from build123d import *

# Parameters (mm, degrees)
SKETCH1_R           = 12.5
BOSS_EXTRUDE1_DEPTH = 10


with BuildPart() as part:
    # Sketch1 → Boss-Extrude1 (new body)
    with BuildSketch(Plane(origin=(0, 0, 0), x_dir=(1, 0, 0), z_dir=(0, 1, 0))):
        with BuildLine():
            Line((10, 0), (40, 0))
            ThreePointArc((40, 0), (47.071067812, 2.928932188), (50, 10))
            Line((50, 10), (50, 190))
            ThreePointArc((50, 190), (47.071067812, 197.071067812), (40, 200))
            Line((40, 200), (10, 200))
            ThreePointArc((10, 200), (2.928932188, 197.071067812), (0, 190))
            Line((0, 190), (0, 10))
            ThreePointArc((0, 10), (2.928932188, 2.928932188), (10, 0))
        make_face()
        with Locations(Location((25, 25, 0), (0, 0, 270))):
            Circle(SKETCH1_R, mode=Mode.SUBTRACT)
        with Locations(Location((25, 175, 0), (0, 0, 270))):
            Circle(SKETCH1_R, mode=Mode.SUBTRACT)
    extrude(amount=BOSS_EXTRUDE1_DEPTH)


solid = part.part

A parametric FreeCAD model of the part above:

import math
import FreeCAD as App
import Part
import Sketcher

doc = App.newDocument("Part")
body = doc.addObject("PartDesign::Body", "Body")

# Sketch on XZ plane
sketch1 = body.newObject("Sketcher::SketchObject", "Sketch")
sketch1.AttachmentSupport = (doc.getObject("XZ_Plane"), [""])
sketch1.MapMode = "FlatFace"
sketch1.addGeometry(Part.LineSegment(App.Vector(10, 0, 0), App.Vector(40, 0, 0)), False)
sketch1.addGeometry(Part.ArcOfCircle(Part.Circle(App.Vector(40, -10, 0), App.Vector(0, 0, 1), 10), math.radians(0), math.radians(90)), False)
sketch1.addGeometry(Part.LineSegment(App.Vector(50, -10, 0), App.Vector(50, -190, 0)), False)
sketch1.addGeometry(Part.ArcOfCircle(Part.Circle(App.Vector(40, -190, 0), App.Vector(0, 0, 1), 10), math.radians(-90), math.radians(0)), False)
sketch1.addGeometry(Part.LineSegment(App.Vector(40, -200, 0), App.Vector(10, -200, 0)), False)
sketch1.addGeometry(Part.ArcOfCircle(Part.Circle(App.Vector(10, -190, 0), App.Vector(0, 0, 1), 10), math.radians(180), math.radians(270)), False)
sketch1.addGeometry(Part.LineSegment(App.Vector(0, -190, 0), App.Vector(0, -10, 0)), False)
sketch1.addGeometry(Part.ArcOfCircle(Part.Circle(App.Vector(10, -10, 0), App.Vector(0, 0, 1), 10), math.radians(90), math.radians(180)), False)
sketch1.addGeometry(Part.Circle(App.Vector(25, -25, 0), App.Vector(0, 0, 1), 12), False)
sketch1.addGeometry(Part.Circle(App.Vector(25, -175, 0), App.Vector(0, 0, 1), 12), False)
sketch1.addConstraint(Sketcher.Constraint("Tangent", 0, 2, 1, 2))
sketch1.addConstraint(Sketcher.Constraint("Tangent", 1, 1, 2, 1))
sketch1.addConstraint(Sketcher.Constraint("Tangent", 2, 2, 3, 2))
sketch1.addConstraint(Sketcher.Constraint("Tangent", 3, 1, 4, 1))
sketch1.addConstraint(Sketcher.Constraint("Tangent", 4, 2, 5, 2))
sketch1.addConstraint(Sketcher.Constraint("Tangent", 5, 1, 6, 1))
sketch1.addConstraint(Sketcher.Constraint("Tangent", 6, 2, 7, 2))
sketch1.addConstraint(Sketcher.Constraint("Tangent", 7, 1, 0, 1))
sketch1.addConstraint(Sketcher.Constraint("Horizontal", 0))
sketch1.addConstraint(Sketcher.Constraint("Vertical", 2))
sketch1.addConstraint(Sketcher.Constraint("Horizontal", 4))
sketch1.addConstraint(Sketcher.Constraint("Vertical", 6))
sketch1.addConstraint(Sketcher.Constraint("Equal", 1, 3))
sketch1.addConstraint(Sketcher.Constraint("Equal", 3, 5))
sketch1.addConstraint(Sketcher.Constraint("Equal", 5, 7))
sketch1.addConstraint(Sketcher.Constraint("Equal", 8, 9))
sketch1.addConstraint(Sketcher.Constraint("PointOnObject", 0, 2, -1))
sketch1.addConstraint(Sketcher.Constraint("PointOnObject", 5, 1, -2))
sketch1.addConstraint(Sketcher.Constraint("Vertical", 8, 3, 9, 3))
sketch1.addConstraint(Sketcher.Constraint("Diameter", 8, 25.0))
sketch1.addConstraint(Sketcher.Constraint("Radius", 1, 10.0))
sketch1.addConstraint(Sketcher.Constraint("DistanceX", 0, 1, 0, 2, 30.0))
sketch1.addConstraint(Sketcher.Constraint("DistanceY", 2, 2, 2, 1, 180.0))
sketch1.addConstraint(Sketcher.Constraint("DistanceX", -1, 1, 8, 3, 25.0))
sketch1.addConstraint(Sketcher.Constraint("DistanceY", 8, 3, -1, 1, 25.0))
sketch1.addConstraint(Sketcher.Constraint("DistanceY", 9, 3, -1, 1, 175.0))
pad1 = body.newObject("PartDesign::Pad", "Pad")
pad1.Profile = sketch1
pad1.Length = 10
pad1.Reversed = True

doc.recompute()
